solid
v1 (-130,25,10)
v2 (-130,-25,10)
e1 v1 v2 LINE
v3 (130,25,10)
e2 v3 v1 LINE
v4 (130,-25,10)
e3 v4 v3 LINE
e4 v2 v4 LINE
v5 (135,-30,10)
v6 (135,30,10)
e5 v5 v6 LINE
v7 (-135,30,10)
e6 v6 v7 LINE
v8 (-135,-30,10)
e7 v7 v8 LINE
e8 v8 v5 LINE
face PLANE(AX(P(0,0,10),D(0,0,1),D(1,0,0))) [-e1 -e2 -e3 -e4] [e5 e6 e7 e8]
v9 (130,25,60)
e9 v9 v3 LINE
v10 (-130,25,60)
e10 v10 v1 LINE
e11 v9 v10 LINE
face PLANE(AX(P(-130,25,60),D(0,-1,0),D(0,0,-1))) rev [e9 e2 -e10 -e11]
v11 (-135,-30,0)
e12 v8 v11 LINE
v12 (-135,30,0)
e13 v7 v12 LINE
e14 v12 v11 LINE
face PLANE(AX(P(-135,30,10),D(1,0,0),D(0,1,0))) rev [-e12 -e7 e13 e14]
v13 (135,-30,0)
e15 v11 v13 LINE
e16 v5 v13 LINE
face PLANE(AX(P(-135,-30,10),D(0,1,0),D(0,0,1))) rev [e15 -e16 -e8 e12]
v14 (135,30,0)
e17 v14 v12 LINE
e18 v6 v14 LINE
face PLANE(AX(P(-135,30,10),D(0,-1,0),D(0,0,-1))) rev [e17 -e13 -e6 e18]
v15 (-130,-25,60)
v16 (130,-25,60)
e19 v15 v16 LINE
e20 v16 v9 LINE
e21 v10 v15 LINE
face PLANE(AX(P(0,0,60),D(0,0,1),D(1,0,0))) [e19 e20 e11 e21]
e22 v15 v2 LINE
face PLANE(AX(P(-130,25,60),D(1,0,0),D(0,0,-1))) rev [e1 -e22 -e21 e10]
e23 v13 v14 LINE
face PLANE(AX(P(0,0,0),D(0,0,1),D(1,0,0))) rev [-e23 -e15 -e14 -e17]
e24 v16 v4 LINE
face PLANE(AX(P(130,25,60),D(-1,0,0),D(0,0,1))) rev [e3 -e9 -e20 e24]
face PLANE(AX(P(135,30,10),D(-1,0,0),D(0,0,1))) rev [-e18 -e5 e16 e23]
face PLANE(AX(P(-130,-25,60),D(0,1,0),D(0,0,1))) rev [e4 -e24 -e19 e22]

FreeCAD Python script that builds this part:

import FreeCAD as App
import Part
import Sketcher
Q = App.Units.Quantity


def add_polygon(sketch, points):
    """Adds a closed chain of lines whose ends are joined by coincident constraints."""
    first, n = sketch.GeometryCount, len(points)
    for a, b in zip(points, points[1:] + points[:1]):
        sketch.addGeometry(Part.LineSegment(App.Vector(*a, 0), App.Vector(*b, 0)), False)
    for i in range(n):
        sketch.addConstraint(Sketcher.Constraint("Coincident", first + i, 2, first + (i + 1) % n, 1))

doc = App.newDocument("Part")
body = doc.addObject("PartDesign::Body", "Body")

sketch1 = body.newObject("Sketcher::SketchObject", "Sketch")
sketch1.AttachmentSupport = (doc.getObject("XY_Plane"), [""])
sketch1.MapMode = "FlatFace"
add_polygon(sketch1, [(-135, 30), (-135, -30), (135, -30), (135, 30)])
sketch1.addConstraint([
    Sketcher.Constraint("Vertical", 0),
    Sketcher.Constraint("Horizontal", 1),
    Sketcher.Constraint("Vertical", 2),
    Sketcher.Constraint("Horizontal", 3),
    Sketcher.Constraint("Symmetric", 0, 2, 2, 2, -1, 1),
    Sketcher.Constraint("DistanceX", 1, 1, 1, 2, Q("270 mm")),
    Sketcher.Constraint("DistanceY", 0, 2, 0, 1, Q("60 mm")),
])
pad1 = body.newObject("PartDesign::Pad", "Pad")
pad1.Profile = sketch1
pad1.Length = 10

sketch2 = body.newObject("Sketcher::SketchObject", "Sketch001")
sketch2.AttachmentSupport = (doc.getObject("XY_Plane"), [""])
sketch2.MapMode = "FlatFace"
sketch2.AttachmentOffset = App.Placement(App.Vector(0, 0, 10), App.Rotation())
add_polygon(sketch2, [(-130, 25), (-130, -25), (130, -25), (130, 25)])
sketch2.addConstraint([
    Sketcher.Constraint("Vertical", 0),
    Sketcher.Constraint("Horizontal", 1),
    Sketcher.Constraint("Vertical", 2),
    Sketcher.Constraint("Horizontal", 3),
    Sketcher.Constraint("Symmetric", 0, 2, 2, 2, -1, 1),
    Sketcher.Constraint("DistanceX", 1, 1, 1, 2, Q("260 mm")),
    Sketcher.Constraint("DistanceY", 0, 2, 0, 1, Q("50 mm")),
])
pad2 = body.newObject("PartDesign::Pad", "Pad001")
pad2.Profile = sketch2
pad2.Length = 50

doc.recompute()
